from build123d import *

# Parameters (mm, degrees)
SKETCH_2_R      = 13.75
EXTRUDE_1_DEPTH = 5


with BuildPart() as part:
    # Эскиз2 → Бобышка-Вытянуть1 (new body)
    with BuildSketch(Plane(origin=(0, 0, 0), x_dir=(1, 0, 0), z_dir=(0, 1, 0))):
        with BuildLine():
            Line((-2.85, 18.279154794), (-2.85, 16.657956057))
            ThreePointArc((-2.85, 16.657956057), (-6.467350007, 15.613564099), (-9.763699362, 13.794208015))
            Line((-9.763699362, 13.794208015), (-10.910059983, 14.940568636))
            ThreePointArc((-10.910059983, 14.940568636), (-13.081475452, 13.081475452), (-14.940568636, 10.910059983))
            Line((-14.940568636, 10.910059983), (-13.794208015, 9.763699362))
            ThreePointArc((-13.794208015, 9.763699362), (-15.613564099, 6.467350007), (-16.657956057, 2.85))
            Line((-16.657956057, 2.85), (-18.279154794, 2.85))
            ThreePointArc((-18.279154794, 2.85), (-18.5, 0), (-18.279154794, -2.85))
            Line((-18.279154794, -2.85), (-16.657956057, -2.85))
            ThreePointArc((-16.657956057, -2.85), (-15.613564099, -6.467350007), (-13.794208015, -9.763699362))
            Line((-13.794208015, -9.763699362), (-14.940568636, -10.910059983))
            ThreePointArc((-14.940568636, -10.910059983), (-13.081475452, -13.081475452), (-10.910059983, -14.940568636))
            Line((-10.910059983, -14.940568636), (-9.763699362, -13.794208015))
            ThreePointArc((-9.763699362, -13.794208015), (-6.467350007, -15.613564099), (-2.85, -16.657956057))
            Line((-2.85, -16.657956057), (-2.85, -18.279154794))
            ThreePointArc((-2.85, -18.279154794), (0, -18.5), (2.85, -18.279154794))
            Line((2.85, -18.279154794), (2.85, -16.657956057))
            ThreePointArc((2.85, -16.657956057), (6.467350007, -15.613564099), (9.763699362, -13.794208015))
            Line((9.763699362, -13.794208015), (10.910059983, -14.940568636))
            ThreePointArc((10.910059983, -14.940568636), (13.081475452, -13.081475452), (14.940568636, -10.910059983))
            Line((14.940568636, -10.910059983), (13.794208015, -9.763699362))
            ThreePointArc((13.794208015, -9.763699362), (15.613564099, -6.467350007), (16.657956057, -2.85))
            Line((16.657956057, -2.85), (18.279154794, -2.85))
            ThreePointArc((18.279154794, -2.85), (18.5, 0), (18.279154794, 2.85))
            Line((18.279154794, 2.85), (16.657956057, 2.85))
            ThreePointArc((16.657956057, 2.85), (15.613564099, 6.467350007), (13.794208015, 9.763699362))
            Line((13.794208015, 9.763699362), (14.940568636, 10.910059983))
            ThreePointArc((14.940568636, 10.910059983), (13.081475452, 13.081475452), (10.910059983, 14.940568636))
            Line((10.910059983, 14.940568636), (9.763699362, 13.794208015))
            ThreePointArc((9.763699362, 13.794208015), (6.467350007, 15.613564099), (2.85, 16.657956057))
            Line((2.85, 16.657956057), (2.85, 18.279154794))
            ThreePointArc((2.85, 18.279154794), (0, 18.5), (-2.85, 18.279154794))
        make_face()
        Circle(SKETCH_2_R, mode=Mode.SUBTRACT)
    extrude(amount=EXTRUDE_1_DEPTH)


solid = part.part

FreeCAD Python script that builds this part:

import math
import FreeCAD as App
import Part
import Sketcher
from FreeCAD import Vector

doc = App.newDocument("Part")
body = doc.addObject("PartDesign::Body", "Body")

sketch1 = doc.addObject("Sketcher::SketchObject", "Sketch")
body.addObject(sketch1)
sketch1.AttachmentSupport = (doc.XZ_Plane, [""])
sketch1.MapMode = "FlatFace"
sketch1.addGeometry([
    Part.LineSegment(Vector(-2.9, -18.3, 0), Vector(-2.9, -16.7, 0)),
    Part.ArcOfCircle(Part.Circle(Vector(0, 0, 0), Vector(0, 0, 1), 16.9), math.radians(-125), math.radians(-100)),
    Part.LineSegment(Vector(-9.8, -13.8, 0), Vector(-10.9, -14.9, 0)),
    Part.ArcOfCircle(Part.Circle(Vector(0, 0, 0), Vector(0, 0, 1), 18.5), math.radians(-143.86), math.radians(-126.14)),
    Part.LineSegment(Vector(-14.9, -10.9, 0), Vector(-13.8, -9.8, 0)),
    Part.ArcOfCircle(Part.Circle(Vector(0, 0, 0), Vector(0, 0, 1), 16.9), math.radians(-170), math.radians(-145)),
    Part.LineSegment(Vector(-16.7, -2.9, 0), Vector(-18.3, -2.9, 0)),
    Part.ArcOfCircle(Part.Circle(Vector(0, 0, 0), Vector(0, 0, 1), 18.5), math.radians(171.14), math.radians(188.86)),
    Part.LineSegment(Vector(-18.3, 2.9, 0), Vector(-16.7, 2.9, 0)),
    Part.ArcOfCircle(Part.Circle(Vector(0, 0, 0), Vector(0, 0, 1), 16.9), math.radians(145), math.radians(170)),
    Part.LineSegment(Vector(-13.8, 9.8, 0), Vector(-14.9, 10.9, 0)),
    Part.ArcOfCircle(Part.Circle(Vector(0, 0, 0), Vector(0, 0, 1), 18.5), math.radians(126.14), math.radians(143.86)),
    Part.LineSegment(Vector(-10.9, 14.9, 0), Vector(-9.8, 13.8, 0)),
    Part.ArcOfCircle(Part.Circle(Vector(0, 0, 0), Vector(0, 0, 1), 16.9), math.radians(100), math.radians(125)),
    Part.LineSegment(Vector(-2.9, 16.7, 0), Vector(-2.9, 18.3, 0)),
    Part.ArcOfCircle(Part.Circle(Vector(0, 0, 0), Vector(0, 0, 1), 18.5), math.radians(81.14), math.radians(98.86)),
    Part.LineSegment(Vector(2.9, 18.3, 0), Vector(2.9, 16.7, 0)),
    Part.ArcOfCircle(Part.Circle(Vector(0, 0, 0), Vector(0, 0, 1), 16.9), math.radians(55), math.radians(80)),
    Part.LineSegment(Vector(9.8, 13.8, 0), Vector(10.9, 14.9, 0)),
    Part.ArcOfCircle(Part.Circle(Vector(0, 0, 0), Vector(0, 0, 1), 18.5), math.radians(36.14), math.radians(53.86)),
    Part.LineSegment(Vector(14.9, 10.9, 0), Vector(13.8, 9.8, 0)),
    Part.ArcOfCircle(Part.Circle(Vector(0, 0, 0), Vector(0, 0, 1), 16.9), math.radians(10), math.radians(35)),
    Part.LineSegment(Vector(16.7, 2.9, 0), Vector(18.3, 2.9, 0)),
    Part.ArcOfCircle(Part.Circle(Vector(0, 0, 0), Vector(0, 0, 1), 18.5), math.radians(-8.86), math.radians(8.86)),
    Part.LineSegment(Vector(18.3, -2.9, 0), Vector(16.7, -2.9, 0)),
    Part.ArcOfCircle(Part.Circle(Vector(0, 0, 0), Vector(0, 0, 1), 16.9), math.radians(-35), math.radians(-10)),
    Part.LineSegment(Vector(13.8, -9.8, 0), Vector(14.9, -10.9, 0)),
    Part.ArcOfCircle(Part.Circle(Vector(0, 0, 0), Vector(0, 0, 1), 18.5), math.radians(-53.86), math.radians(-36.14)),
    Part.LineSegment(Vector(10.9, -14.9, 0), Vector(9.8, -13.8, 0)),
    Part.ArcOfCircle(Part.Circle(Vector(0, 0, 0), Vector(0, 0, 1), 16.9), math.radians(-80), math.radians(-55)),
    Part.LineSegment(Vector(2.9, -16.7, 0), Vector(2.9, -18.3, 0)),
    Part.ArcOfCircle(Part.Circle(Vector(0, 0, 0), Vector(0, 0, 1), 18.5), math.radians(-98.86), math.radians(-81.14)),
    Part.Circle(Vector(0, 0, 0), Vector(0, 0, 1), 13.8),
], False)
sketch1.addConstraint([
    Sketcher.Constraint("Coincident", 0, 2, 1, 2),
    Sketcher.Constraint("Coincident", 1, 1, 2, 1),
    Sketcher.Constraint("Coincident", 2, 2, 3, 2),
    Sketcher.Constraint("Coincident", 3, 1, 4, 1),
    Sketcher.Constraint("Coincident", 4, 2, 5, 2),
    Sketcher.Constraint("Coincident", 5, 1, 6, 1),
    Sketcher.Constraint("Coincident", 6, 2, 7, 2),
    Sketcher.Constraint("Coincident", 7, 1, 8, 1),
    Sketcher.Constraint("Coincident", 8, 2, 9, 2),
    Sketcher.Constraint("Coincident", 9, 1, 10, 1),
    Sketcher.Constraint("Coincident", 10, 2, 11, 2),
    Sketcher.Constraint("Coincident", 11, 1, 12, 1),
    Sketcher.Constraint("Coincident", 12, 2, 13, 2),
    Sketcher.Constraint("Coincident", 13, 1, 14, 1),
    Sketcher.Constraint("Coincident", 14, 2, 15, 2),
    Sketcher.Constraint("Coincident", 15, 1, 16, 1),
    Sketcher.Constraint("Coincident", 16, 2, 17, 2),
    Sketcher.Constraint("Coincident", 17, 1, 18, 1),
    Sketcher.Constraint("Coincident", 18, 2, 19, 2),
    Sketcher.Constraint("Coincident", 19, 1, 20, 1),
    Sketcher.Constraint("Coincident", 20, 2, 21, 2),
    Sketcher.Constraint("Coincident", 21, 1, 22, 1),
    Sketcher.Constraint("Coincident", 22, 2, 23, 2),
    Sketcher.Constraint("Coincident", 23, 1, 24, 1),
    Sketcher.Constraint("Coincident", 24, 2, 25, 2),
    Sketcher.Constraint("Coincident", 25, 1, 26, 1),
    Sketcher.Constraint("Coincident", 26, 2, 27, 2),
    Sketcher.Constraint("Coincident", 27, 1, 28, 1),
    Sketcher.Constraint("Coincident", 28, 2, 29, 2),
    Sketcher.Constraint("Coincident", 29, 1, 30, 1),
    Sketcher.Constraint("Coincident", 30, 2, 31, 2),
    Sketcher.Constraint("Coincident", 31, 1, 0, 1),
    Sketcher.Constraint("Vertical", 0),
    Sketcher.Constraint("Horizontal", 6),
    Sketcher.Constraint("Horizontal", 8),
    Sketcher.Constraint("Vertical", 14),
    Sketcher.Constraint("Vertical", 16),
    Sketcher.Constraint("Horizontal", 22),
    Sketcher.Constraint("Horizontal", 24),
    Sketcher.Constraint("Vertical", 30),
    Sketcher.Constraint("Coincident", 1, 3, -1, 1),
    Sketcher.Constraint("Coincident", 3, 3, -1, 1),
    Sketcher.Constraint("Coincident", 5, 3, -1, 1),
    Sketcher.Constraint("Coincident", 7, 3, -1, 1),
    Sketcher.Constraint("Coincident", 9, 3, -1, 1),
    Sketcher.Constraint("Coincident", 11, 3, -1, 1),
    Sketcher.Constraint("Coincident", 13, 3, -1, 1),
    Sketcher.Constraint("Coincident", 15, 3, -1, 1),
    Sketcher.Constraint("Coincident", 17, 3, -1, 1),
    Sketcher.Constraint("Coincident", 19, 3, -1, 1),
    Sketcher.Constraint("Coincident", 21, 3, -1, 1),
    Sketcher.Constraint("Coincident", 23, 3, -1, 1),
    Sketcher.Constraint("Coincident", 25, 3, -1, 1),
    Sketcher.Constraint("Coincident", 27, 3, -1, 1),
    Sketcher.Constraint("Coincident", 29, 3, -1, 1),
    Sketcher.Constraint("Coincident", 31, 3, -1, 1),
    Sketcher.Constraint("Coincident", 32, 3, -1, 1),
    Sketcher.Constraint("Equal", 1, 5),
    Sketcher.Constraint("Equal", 3, 7),
    Sketcher.Constraint("Equal", 5, 9),
    Sketcher.Constraint("Equal", 7, 11),
    Sketcher.Constraint("Equal", 9, 13),
    Sketcher.Constraint("Equal", 11, 15),
    Sketcher.Constraint("Equal", 13, 17),
    Sketcher.Constraint("Equal", 15, 19),
    Sketcher.Constraint("Equal", 17, 21),
    Sketcher.Constraint("Equal", 19, 23),
    Sketcher.Constraint("Equal", 21, 25),
    Sketcher.Constraint("Equal", 23, 27),
    Sketcher.Constraint("Equal", 25, 29),
    Sketcher.Constraint("Equal", 27, 31),
    Sketcher.Constraint("Parallel", 2, 4),
    Sketcher.Constraint("Perpendicular", 4, 10),
    Sketcher.Constraint("Parallel", 10, 12),
    Sketcher.Constraint("Perpendicular", 12, 18),
    Sketcher.Constraint("Parallel", 18, 20),
    Sketcher.Constraint("Perpendicular", 20, 26),
    Sketcher.Constraint("Parallel", 26, 28),
    Sketcher.Constraint("Horizontal", 14, 2, 15, 1),
    Sketcher.Constraint("Horizontal", 12, 2, 17, 1),
    Sketcher.Constraint("Horizontal", 11, 1, 18, 2),
    Sketcher.Constraint("Horizontal", 10, 2, 19, 1),
    Sketcher.Constraint("Horizontal", 8, 2, 21, 1),
    Sketcher.Constraint("Horizontal", 6, 2, 23, 1),
    Sketcher.Constraint("Horizontal", 4, 2, 25, 1),
    Sketcher.Constraint("Horizontal", 2, 2, 27, 1),
    Sketcher.Constraint("Horizontal", 0, 2, 29, 1),
    Sketcher.Constraint("Vertical", 6, 2, 7, 1),
    Sketcher.Constraint("Vertical", 4, 2, 9, 1),
    Sketcher.Constraint("Vertical", 2, 2, 11, 1),
    Sketcher.Constraint("Vertical", 0, 2, 13, 1),
    Sketcher.Constraint("Equal", 24, 0),
    Sketcher.Constraint("Equal", 2, 4),
    Sketcher.Constraint("Diameter", 32, 27.5),
    Sketcher.Constraint("Radius", 1, 16.9),
    Sketcher.Constraint("Radius", 3, 18.5),
    Sketcher.Constraint("DistanceY", 6, 2, 7, 1, 5.7),
    Sketcher.Constraint("Distance", 2, 1.621199),
])
pad1 = doc.addObject("PartDesign::Pad", "Pad")
body.addObject(pad1)
pad1.Profile = sketch1
pad1.Length = 5
pad1.Reversed = True

doc.recompute()
